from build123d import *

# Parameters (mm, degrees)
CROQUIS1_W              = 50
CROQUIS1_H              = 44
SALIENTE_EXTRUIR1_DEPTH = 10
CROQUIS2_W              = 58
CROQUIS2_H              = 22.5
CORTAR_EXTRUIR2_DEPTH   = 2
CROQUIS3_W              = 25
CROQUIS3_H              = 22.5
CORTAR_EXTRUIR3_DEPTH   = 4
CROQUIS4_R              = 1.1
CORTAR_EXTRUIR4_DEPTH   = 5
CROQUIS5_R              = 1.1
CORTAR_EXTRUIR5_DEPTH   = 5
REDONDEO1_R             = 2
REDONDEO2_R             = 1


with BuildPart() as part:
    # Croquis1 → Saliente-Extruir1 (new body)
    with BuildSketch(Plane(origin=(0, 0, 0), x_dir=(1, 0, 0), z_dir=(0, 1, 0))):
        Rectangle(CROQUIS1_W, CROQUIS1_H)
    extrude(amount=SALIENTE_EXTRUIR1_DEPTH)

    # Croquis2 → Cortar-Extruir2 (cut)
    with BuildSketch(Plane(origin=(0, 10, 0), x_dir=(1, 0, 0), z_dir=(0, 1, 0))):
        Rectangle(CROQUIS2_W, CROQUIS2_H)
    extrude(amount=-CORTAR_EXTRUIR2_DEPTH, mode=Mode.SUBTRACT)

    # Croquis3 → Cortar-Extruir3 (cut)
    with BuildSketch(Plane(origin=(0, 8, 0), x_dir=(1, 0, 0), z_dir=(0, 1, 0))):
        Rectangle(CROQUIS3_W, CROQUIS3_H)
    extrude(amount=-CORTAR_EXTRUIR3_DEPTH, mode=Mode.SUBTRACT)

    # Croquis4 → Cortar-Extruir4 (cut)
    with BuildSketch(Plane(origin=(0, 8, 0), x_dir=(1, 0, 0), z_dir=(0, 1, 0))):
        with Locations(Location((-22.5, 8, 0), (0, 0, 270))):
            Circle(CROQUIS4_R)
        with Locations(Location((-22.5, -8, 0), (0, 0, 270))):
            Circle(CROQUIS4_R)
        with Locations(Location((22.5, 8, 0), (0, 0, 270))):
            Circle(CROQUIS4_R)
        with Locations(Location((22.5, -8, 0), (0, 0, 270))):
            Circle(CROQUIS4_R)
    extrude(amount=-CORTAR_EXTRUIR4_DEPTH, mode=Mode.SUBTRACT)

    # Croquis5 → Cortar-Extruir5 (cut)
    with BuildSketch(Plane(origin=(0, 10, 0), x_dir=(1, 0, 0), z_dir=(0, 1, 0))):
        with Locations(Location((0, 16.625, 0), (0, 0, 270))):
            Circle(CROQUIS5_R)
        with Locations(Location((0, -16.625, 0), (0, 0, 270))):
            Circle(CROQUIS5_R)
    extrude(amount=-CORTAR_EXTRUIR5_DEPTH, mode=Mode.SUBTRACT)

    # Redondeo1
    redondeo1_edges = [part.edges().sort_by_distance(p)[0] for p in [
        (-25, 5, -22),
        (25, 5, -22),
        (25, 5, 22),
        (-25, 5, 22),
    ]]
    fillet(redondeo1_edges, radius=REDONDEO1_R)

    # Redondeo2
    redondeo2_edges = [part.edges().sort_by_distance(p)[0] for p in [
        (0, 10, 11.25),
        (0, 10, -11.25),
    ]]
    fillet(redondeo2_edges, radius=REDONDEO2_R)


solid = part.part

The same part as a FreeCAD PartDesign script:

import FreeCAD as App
import Part
import Sketcher
from FreeCAD import Vector


def edges_at(feature, points):
    """Names of the edges that pass closest to the given points."""
    edges = feature.Shape.Edges
    near = lambda p: min(range(len(edges)), key=lambda i: edges[i].distToShape(Part.Vertex(*p))[0])
    return sorted({f"Edge{near(p) + 1}" for p in points})

doc = App.newDocument("Part")
body = doc.addObject("PartDesign::Body", "Body")

sketch1 = body.newObject("Sketcher::SketchObject", "Sketch")
sketch1.AttachmentSupport = (doc.getObject("XZ_Plane"), [""])
sketch1.MapMode = "FlatFace"
sketch1.addGeometry([
    Part.LineSegment(Vector(-25, -22, 0), Vector(-25, 22, 0)),
    Part.LineSegment(Vector(-25, 22, 0), Vector(25, 22, 0)),
    Part.LineSegment(Vector(25, 22, 0), Vector(25, -22, 0)),
    Part.LineSegment(Vector(25, -22, 0), Vector(-25, -22, 0)),
], False)
sketch1.addConstraint([
    Sketcher.Constraint("Coincident", 0, 2, 1, 1),
    Sketcher.Constraint("Coincident", 1, 2, 2, 1),
    Sketcher.Constraint("Coincident", 2, 2, 3, 1),
    Sketcher.Constraint("Coincident", 3, 2, 0, 1),
    Sketcher.Constraint("Vertical", 0),
    Sketcher.Constraint("Horizontal", 1),
    Sketcher.Constraint("Vertical", 2),
    Sketcher.Constraint("Horizontal", 3),
    Sketcher.Constraint("Symmetric", 0, 2, 2, 2, -1, 1),
    Sketcher.Constraint("DistanceX", 1, 1, 1, 2, 50.0),
    Sketcher.Constraint("DistanceY", 0, 1, 0, 2, 44.0),
])
pad1 = body.newObject("PartDesign::Pad", "Pad")
pad1.Profile = sketch1
pad1.Length = 10
pad1.Reversed = True

sketch2 = body.newObject("Sketcher::SketchObject", "Sketch001")
sketch2.AttachmentSupport = (doc.getObject("XZ_Plane"), [""])
sketch2.MapMode = "FlatFace"
sketch2.AttachmentOffset = App.Placement(Vector(0, 0, -10), App.Rotation())
sketch2.addGeometry([
    Part.LineSegment(Vector(-29, -11.25, 0), Vector(-29, 11.25, 0)),
    Part.LineSegment(Vector(-29, 11.25, 0), Vector(29, 11.25, 0)),
    Part.LineSegment(Vector(29, 11.25, 0), Vector(29, -11.25, 0)),
    Part.LineSegment(Vector(29, -11.25, 0), Vector(-29, -11.25, 0)),
], False)
sketch2.addConstraint([
    Sketcher.Constraint("Coincident", 0, 2, 1, 1),
    Sketcher.Constraint("Coincident", 1, 2, 2, 1),
    Sketcher.Constraint("Coincident", 2, 2, 3, 1),
    Sketcher.Constraint("Coincident", 3, 2, 0, 1),
    Sketcher.Constraint("Vertical", 0),
    Sketcher.Constraint("Horizontal", 1),
    Sketcher.Constraint("Vertical", 2),
    Sketcher.Constraint("Horizontal", 3),
    Sketcher.Constraint("Symmetric", 0, 2, 2, 2, -1, 1),
    Sketcher.Constraint("DistanceX", 1, 1, 1, 2, 58.0),
    Sketcher.Constraint("DistanceY", 0, 1, 0, 2, 22.5),
])
pocket1 = body.newObject("PartDesign::Pocket", "Pocket")
pocket1.Profile = sketch2
pocket1.Length = 2
pocket1.Reversed = True

sketch3 = body.newObject("Sketcher::SketchObject", "Sketch002")
sketch3.AttachmentSupport = (doc.getObject("XZ_Plane"), [""])
sketch3.MapMode = "FlatFace"
sketch3.AttachmentOffset = App.Placement(Vector(0, 0, -8), App.Rotation())
sketch3.addGeometry([
    Part.LineSegment(Vector(-12.5, -11.25, 0), Vector(-12.5, 11.25, 0)),
    Part.LineSegment(Vector(-12.5, 11.25, 0), Vector(12.5, 11.25, 0)),
    Part.LineSegment(Vector(12.5, 11.25, 0), Vector(12.5, -11.25, 0)),
    Part.LineSegment(Vector(12.5, -11.25, 0), Vector(-12.5, -11.25, 0)),
], False)
sketch3.addConstraint([
    Sketcher.Constraint("Coincident", 0, 2, 1, 1),
    Sketcher.Constraint("Coincident", 1, 2, 2, 1),
    Sketcher.Constraint("Coincident", 2, 2, 3, 1),
    Sketcher.Constraint("Coincident", 3, 2, 0, 1),
    Sketcher.Constraint("Vertical", 0),
    Sketcher.Constraint("Horizontal", 1),
    Sketcher.Constraint("Vertical", 2),
    Sketcher.Constraint("Horizontal", 3),
    Sketcher.Constraint("Symmetric", 0, 2, 2, 2, -1, 1),
    Sketcher.Constraint("DistanceX", 1, 1, 1, 2, 25.0),
    Sketcher.Constraint("DistanceY", 0, 1, 0, 2, 22.5),
])
pocket2 = body.newObject("PartDesign::Pocket", "Pocket001")
pocket2.Profile = sketch3
pocket2.Length = 4
pocket2.Reversed = True

sketch4 = body.newObject("Sketcher::SketchObject", "Sketch003")
sketch4.AttachmentSupport = (doc.getObject("XZ_Plane"), [""])
sketch4.MapMode = "FlatFace"
sketch4.AttachmentOffset = App.Placement(Vector(0, 0, -8), App.Rotation())
sketch4.addGeometry([
    Part.Circle(Vector(-22.5, -8, 0), Vector(0, 0, 1), 1.1),
    Part.Circle(Vector(-22.5, 8, 0), Vector(0, 0, 1), 1.1),
    Part.Circle(Vector(22.5, -8, 0), Vector(0, 0, 1), 1.1),
    Part.Circle(Vector(22.5, 8, 0), Vector(0, 0, 1), 1.1),
], False)
sketch4.addConstraint([
    Sketcher.Constraint("Equal", 0, 1),
    Sketcher.Constraint("Equal", 1, 2),
    Sketcher.Constraint("Equal", 2, 3),
    Sketcher.Constraint("Symmetric", 1, 3, 2, 3, -1, 1),
    Sketcher.Constraint("Symmetric", 0, 3, 3, 3, -1, 1),
    Sketcher.Constraint("Symmetric", 0, 3, 2, 3, -2),
    Sketcher.Constraint("Diameter", 0, 2.2),
    Sketcher.Constraint("DistanceY", 0, 3, -1, 1, 8.0),
    Sketcher.Constraint("DistanceX", 0, 3, 2, 3, 45.0),
])
pocket3 = body.newObject("PartDesign::Pocket", "Pocket002")
pocket3.Profile = sketch4
pocket3.Length = 5
pocket3.Reversed = True

sketch5 = body.newObject("Sketcher::SketchObject", "Sketch004")
sketch5.AttachmentSupport = (doc.getObject("XZ_Plane"), [""])
sketch5.MapMode = "FlatFace"
sketch5.AttachmentOffset = App.Placement(Vector(0, 0, -10), App.Rotation())
sketch5.addGeometry([
    Part.Circle(Vector(0, -16.625, 0), Vector(0, 0, 1), 1.1),
    Part.Circle(Vector(0, 16.625, 0), Vector(0, 0, 1), 1.1),
], False)
sketch5.addConstraint([
    Sketcher.Constraint("Equal", 0, 1),
    Sketcher.Constraint("Symmetric", 0, 3, 1, 3, -1, 1),
    Sketcher.Constraint("PointOnObject", 0, 3, -2),
    Sketcher.Constraint("Diameter", 0, 2.2),
    Sketcher.Constraint("DistanceY", 0, 3, 1, 3, 33.25),
])
pocket4 = body.newObject("PartDesign::Pocket", "Pocket003")
pocket4.Profile = sketch5
pocket4.Length = 5
pocket4.Reversed = True
doc.recompute()

fillet = body.newObject("PartDesign::Fillet", "Fillet")
fillet.Base = (pocket4, edges_at(pocket4, [
    (-25, 5, -22),
    (25, 5, -22),
    (25, 5, 22),
    (-25, 5, 22),
]))
fillet.Radius = 2
doc.recompute()

fillet2 = body.newObject("PartDesign::Fillet", "Fillet001")
fillet2.Base = (fillet, edges_at(fillet, [(0, 10, 11.25), (0, 10, -11.25)]))
fillet2.Radius = 1

doc.recompute()
